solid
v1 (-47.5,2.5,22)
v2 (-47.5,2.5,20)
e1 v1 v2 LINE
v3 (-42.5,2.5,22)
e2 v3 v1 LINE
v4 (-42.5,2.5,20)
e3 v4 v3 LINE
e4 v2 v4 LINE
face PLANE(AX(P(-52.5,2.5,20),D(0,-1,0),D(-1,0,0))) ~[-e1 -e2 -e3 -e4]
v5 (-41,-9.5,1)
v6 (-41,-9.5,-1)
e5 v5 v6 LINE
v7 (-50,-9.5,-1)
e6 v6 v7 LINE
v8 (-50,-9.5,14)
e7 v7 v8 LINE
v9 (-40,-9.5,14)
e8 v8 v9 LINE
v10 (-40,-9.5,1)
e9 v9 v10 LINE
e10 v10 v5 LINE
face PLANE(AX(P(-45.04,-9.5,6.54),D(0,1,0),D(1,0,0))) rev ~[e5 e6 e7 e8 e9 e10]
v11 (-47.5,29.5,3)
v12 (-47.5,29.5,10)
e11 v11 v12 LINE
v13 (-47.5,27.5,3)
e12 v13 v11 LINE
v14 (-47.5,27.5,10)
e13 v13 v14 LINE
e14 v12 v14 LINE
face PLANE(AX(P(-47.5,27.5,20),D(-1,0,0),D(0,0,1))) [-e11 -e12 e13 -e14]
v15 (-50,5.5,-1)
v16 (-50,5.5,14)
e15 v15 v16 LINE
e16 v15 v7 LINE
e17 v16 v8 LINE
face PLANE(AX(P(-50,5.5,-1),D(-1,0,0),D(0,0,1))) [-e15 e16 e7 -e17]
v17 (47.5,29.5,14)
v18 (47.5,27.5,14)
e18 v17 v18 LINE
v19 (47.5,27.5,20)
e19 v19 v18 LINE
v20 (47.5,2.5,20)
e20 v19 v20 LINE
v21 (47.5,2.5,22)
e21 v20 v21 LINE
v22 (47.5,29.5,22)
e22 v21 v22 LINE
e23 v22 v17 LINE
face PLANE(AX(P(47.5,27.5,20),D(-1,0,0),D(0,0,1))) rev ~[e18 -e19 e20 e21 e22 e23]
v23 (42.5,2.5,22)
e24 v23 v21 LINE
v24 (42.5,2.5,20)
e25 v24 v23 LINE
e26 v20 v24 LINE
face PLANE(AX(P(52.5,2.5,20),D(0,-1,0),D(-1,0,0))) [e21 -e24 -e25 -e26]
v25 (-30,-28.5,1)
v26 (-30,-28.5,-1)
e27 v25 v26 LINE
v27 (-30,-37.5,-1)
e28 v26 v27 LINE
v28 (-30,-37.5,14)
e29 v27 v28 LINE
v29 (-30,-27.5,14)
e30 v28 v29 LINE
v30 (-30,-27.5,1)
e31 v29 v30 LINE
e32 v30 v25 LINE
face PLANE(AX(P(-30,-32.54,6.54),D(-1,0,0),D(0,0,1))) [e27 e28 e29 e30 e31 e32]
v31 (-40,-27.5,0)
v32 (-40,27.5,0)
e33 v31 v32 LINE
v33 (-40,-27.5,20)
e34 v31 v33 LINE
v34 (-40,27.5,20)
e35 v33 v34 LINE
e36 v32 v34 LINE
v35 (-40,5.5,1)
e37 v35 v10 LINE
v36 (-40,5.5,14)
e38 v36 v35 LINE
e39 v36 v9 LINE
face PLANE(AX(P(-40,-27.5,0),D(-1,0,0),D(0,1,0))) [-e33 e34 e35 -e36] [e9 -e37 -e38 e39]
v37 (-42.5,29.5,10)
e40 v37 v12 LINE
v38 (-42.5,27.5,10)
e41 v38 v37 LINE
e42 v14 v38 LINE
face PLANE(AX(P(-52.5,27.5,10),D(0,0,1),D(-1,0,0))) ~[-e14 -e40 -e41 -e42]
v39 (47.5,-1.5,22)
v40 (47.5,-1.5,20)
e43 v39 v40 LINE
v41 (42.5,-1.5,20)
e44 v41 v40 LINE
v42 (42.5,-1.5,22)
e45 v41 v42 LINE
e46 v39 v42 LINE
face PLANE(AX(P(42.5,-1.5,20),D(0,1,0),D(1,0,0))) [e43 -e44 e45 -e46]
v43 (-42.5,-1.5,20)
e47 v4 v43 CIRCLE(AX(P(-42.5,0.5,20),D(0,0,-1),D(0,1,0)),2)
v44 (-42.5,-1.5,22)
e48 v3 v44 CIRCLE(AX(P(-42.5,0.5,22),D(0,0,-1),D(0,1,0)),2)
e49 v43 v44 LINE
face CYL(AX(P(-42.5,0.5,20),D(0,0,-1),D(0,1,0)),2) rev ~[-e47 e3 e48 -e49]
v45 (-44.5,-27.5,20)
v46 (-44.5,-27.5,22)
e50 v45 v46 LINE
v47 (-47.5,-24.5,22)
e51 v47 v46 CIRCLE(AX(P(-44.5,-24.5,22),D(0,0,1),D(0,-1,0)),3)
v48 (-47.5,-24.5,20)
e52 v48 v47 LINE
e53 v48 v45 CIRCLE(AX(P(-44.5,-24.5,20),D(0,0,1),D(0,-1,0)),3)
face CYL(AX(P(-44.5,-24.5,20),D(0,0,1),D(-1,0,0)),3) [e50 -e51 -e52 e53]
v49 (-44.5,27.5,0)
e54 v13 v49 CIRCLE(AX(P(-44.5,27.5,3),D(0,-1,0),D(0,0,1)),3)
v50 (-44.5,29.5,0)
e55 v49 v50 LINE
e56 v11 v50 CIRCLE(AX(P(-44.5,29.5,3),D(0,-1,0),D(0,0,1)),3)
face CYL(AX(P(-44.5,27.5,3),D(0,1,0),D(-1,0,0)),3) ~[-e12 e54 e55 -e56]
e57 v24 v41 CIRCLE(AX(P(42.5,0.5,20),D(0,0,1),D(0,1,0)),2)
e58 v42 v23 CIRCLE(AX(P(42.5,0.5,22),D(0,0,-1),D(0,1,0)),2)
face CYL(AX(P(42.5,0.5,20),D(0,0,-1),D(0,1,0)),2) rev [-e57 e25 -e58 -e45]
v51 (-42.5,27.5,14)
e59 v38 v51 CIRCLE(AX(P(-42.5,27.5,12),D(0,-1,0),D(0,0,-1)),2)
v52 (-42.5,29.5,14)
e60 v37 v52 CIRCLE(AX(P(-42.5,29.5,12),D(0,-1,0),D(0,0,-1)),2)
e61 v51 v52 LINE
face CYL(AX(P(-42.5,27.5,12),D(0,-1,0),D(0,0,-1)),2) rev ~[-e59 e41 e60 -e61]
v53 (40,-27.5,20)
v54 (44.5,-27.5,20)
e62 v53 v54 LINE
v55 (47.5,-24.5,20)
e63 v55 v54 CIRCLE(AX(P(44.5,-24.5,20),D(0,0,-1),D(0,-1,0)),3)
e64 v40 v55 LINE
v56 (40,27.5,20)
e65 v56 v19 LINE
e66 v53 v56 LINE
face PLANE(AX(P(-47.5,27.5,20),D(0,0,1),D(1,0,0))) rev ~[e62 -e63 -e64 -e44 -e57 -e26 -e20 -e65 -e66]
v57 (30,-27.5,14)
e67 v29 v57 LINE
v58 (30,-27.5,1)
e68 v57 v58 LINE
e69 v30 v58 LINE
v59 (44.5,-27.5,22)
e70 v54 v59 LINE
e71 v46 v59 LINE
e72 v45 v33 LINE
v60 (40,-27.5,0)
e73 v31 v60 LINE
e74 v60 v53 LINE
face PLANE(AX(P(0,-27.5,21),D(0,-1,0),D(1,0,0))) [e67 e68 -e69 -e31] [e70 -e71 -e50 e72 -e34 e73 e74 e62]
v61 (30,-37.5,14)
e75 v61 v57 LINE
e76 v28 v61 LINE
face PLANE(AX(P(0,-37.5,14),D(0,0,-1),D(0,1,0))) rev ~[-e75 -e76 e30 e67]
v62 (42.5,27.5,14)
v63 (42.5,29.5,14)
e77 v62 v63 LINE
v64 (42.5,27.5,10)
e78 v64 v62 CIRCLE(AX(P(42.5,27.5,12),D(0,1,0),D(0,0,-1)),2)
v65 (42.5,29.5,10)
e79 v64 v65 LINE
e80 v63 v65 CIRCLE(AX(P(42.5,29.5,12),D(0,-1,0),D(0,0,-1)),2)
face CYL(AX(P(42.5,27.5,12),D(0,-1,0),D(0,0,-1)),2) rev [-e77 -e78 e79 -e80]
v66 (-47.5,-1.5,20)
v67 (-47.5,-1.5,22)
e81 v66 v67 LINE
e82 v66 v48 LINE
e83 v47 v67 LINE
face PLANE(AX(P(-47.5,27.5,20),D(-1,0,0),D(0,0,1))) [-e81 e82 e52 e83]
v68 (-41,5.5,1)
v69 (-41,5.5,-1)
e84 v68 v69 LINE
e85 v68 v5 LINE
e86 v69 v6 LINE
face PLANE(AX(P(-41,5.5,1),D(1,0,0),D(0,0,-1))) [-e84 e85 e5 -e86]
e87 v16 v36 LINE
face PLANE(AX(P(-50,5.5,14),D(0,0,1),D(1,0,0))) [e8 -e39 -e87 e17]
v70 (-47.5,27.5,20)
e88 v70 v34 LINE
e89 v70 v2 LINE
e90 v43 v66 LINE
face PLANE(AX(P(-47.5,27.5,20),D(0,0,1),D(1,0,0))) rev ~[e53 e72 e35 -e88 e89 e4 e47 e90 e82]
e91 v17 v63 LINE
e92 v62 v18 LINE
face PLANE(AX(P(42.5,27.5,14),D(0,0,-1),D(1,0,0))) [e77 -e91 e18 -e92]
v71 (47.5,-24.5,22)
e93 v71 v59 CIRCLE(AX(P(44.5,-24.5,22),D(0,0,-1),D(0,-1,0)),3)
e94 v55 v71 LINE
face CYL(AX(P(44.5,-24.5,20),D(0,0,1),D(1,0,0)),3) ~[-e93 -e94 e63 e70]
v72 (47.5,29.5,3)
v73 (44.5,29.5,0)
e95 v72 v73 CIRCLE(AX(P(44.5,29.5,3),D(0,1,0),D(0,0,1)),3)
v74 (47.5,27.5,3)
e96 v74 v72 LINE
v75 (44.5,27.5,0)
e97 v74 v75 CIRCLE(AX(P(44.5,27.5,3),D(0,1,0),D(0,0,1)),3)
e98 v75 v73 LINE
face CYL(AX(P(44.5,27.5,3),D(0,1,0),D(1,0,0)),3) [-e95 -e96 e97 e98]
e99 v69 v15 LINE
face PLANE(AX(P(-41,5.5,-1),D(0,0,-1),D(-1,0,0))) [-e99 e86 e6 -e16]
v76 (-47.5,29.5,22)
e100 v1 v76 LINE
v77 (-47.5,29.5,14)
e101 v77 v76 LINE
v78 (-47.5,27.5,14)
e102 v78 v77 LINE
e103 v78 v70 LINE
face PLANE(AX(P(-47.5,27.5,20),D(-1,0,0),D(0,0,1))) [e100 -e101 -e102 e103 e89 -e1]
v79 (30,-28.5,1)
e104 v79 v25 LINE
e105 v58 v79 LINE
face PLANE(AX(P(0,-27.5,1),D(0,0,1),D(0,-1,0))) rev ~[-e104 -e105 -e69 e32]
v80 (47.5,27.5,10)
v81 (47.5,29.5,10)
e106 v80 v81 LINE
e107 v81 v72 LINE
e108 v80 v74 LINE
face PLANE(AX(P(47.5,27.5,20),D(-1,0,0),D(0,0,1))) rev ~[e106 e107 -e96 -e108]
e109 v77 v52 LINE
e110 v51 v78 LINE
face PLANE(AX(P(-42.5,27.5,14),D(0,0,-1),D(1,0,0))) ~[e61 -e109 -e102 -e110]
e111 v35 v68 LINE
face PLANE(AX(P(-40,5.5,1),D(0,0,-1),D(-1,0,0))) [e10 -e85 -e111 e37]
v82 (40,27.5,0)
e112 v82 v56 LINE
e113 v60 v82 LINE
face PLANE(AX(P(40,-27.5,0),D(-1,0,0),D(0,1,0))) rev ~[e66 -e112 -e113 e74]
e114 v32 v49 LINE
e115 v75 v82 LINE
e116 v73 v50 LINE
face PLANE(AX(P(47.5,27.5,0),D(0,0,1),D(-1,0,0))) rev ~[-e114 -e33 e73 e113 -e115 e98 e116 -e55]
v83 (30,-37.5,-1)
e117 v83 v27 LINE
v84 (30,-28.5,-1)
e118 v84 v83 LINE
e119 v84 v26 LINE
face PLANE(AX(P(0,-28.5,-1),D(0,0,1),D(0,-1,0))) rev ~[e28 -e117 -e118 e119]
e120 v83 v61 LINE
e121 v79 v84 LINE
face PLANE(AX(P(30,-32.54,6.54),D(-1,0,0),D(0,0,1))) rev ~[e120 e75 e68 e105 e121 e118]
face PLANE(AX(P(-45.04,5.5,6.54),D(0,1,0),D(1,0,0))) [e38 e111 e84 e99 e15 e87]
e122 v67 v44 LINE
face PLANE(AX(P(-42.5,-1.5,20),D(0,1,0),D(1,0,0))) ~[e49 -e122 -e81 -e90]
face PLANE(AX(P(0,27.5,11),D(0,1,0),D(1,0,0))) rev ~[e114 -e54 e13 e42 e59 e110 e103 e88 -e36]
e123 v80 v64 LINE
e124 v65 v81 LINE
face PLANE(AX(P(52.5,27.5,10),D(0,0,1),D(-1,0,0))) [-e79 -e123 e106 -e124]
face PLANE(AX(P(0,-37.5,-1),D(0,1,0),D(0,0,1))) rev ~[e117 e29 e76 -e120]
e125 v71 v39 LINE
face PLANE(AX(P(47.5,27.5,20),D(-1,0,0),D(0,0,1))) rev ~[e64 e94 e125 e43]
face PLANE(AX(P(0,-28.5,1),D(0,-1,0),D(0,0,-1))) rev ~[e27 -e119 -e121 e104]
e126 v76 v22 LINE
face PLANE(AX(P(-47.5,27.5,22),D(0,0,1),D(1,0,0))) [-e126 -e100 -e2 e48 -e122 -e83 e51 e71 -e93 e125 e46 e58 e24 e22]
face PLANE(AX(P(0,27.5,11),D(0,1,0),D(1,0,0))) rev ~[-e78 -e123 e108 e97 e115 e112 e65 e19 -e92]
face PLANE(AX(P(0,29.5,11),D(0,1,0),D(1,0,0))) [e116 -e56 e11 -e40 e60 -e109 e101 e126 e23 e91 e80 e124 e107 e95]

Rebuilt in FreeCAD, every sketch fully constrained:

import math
import FreeCAD as App
import Part
import Sketcher
Q = App.Units.Quantity


def edges_at(feature, points):
    """Names of the edges that pass closest to the given points."""
    edges = feature.Shape.Edges
    near = lambda p: min(range(len(edges)), key=lambda i: edges[i].distToShape(Part.Vertex(*p))[0])
    return sorted({f"Edge{near(p) + 1}" for p in points})

doc = App.newDocument("Part")
body = doc.addObject("PartDesign::Body", "Body")

sketch1 = doc.addObject("Sketcher::SketchObject", "Sketch")
body.addObject(sketch1)
sketch1.AttachmentSupport = (doc.XY_Plane, [""])
sketch1.MapMode = "FlatFace"
sketch1.addGeometry([
    Part.LineSegment(App.Vector(-40, 28, 0), App.Vector(-40, -28, 0)),
    Part.LineSegment(App.Vector(-40, -28, 0), App.Vector(40, -28, 0)),
    Part.LineSegment(App.Vector(40, -28, 0), App.Vector(40, 28, 0)),
    Part.LineSegment(App.Vector(40, 28, 0), App.Vector(-40, 28, 0)),
], False)
sketch1.addConstraint([
    Sketcher.Constraint("Coincident", 0, 2, 1, 1),
    Sketcher.Constraint("Coincident", 1, 2, 2, 1),
    Sketcher.Constraint("Coincident", 2, 2, 3, 1),
    Sketcher.Constraint("Coincident", 3, 2, 0, 1),
    Sketcher.Constraint("Vertical", 0),
    Sketcher.Constraint("Horizontal", 1),
    Sketcher.Constraint("Vertical", 2),
    Sketcher.Constraint("Horizontal", 3),
    Sketcher.Constraint("Symmetric", 0, 2, 2, 2, -1, 1),
    Sketcher.Constraint("DistanceX", 1, 1, 1, 2, Q("80 mm")),
    Sketcher.Constraint("DistanceY", 0, 2, 0, 1, Q("55 mm")),
])
pad1 = doc.addObject("PartDesign::Pad", "Pad")
body.addObject(pad1)
pad1.Profile = sketch1
pad1.Length = 20
body2 = doc.addObject("PartDesign::Body", "Body001")

sketch2 = doc.addObject("Sketcher::SketchObject", "Sketch001")
body2.addObject(sketch2)
sketch2.AttachmentSupport = (doc.getObject("XZ_Plane001"), [""])
sketch2.MapMode = "FlatFace"
sketch2.AttachmentOffset = App.Placement(App.Vector(0, 0, -27.5), App.Rotation())
sketch2.addGeometry([
    Part.LineSegment(App.Vector(-48, 0, 0), App.Vector(-48, 22, 0)),
    Part.LineSegment(App.Vector(-48, 22, 0), App.Vector(48, 22, 0)),
    Part.LineSegment(App.Vector(48, 22, 0), App.Vector(48, 0, 0)),
    Part.LineSegment(App.Vector(48, 0, 0), App.Vector(-48, 0, 0)),
], False)
sketch2.addConstraint([
    Sketcher.Constraint("Coincident", 0, 2, 1, 1),
    Sketcher.Constraint("Coincident", 1, 2, 2, 1),
    Sketcher.Constraint("Coincident", 2, 2, 3, 1),
    Sketcher.Constraint("Coincident", 3, 2, 0, 1),
    Sketcher.Constraint("Vertical", 0),
    Sketcher.Constraint("Horizontal", 1),
    Sketcher.Constraint("Vertical", 2),
    Sketcher.Constraint("Horizontal", 3),
    Sketcher.Constraint("Symmetric", 2, 2, 3, 2, -1, 1),
    Sketcher.Constraint("DistanceX", 1, 1, 1, 2, Q("95 mm")),
    Sketcher.Constraint("DistanceY", 0, 1, 0, 2, Q("22 mm")),
])
pad2 = doc.addObject("PartDesign::Pad", "Pad001")
body2.addObject(pad2)
pad2.Profile = sketch2
pad2.Length = 2
pad2.Reversed = True
doc.recompute()

boolean = doc.addObject("PartDesign::Boolean", "Boolean")
body.addObject(boolean)
boolean.Type = "Fuse"
boolean.addObjects([body2])

sketch3 = doc.addObject("Sketcher::SketchObject", "Sketch002")
body.addObject(sketch3)
sketch3.AttachmentSupport = (doc.XZ_Plane, [""])
sketch3.MapMode = "FlatFace"
sketch3.AttachmentOffset = App.Placement(App.Vector(0, 0, -27.5), App.Rotation())
sketch3.addGeometry([
    Part.LineSegment(App.Vector(-47.5, 22, 0), App.Vector(-47.5, 20, 0)),
    Part.LineSegment(App.Vector(-47.5, 20, 0), App.Vector(47.5, 20, 0)),
    Part.LineSegment(App.Vector(47.5, 20, 0), App.Vector(47.5, 22, 0)),
    Part.LineSegment(App.Vector(47.5, 22, 0), App.Vector(-47.5, 22, 0)),
], False)
sketch3.addConstraint([
    Sketcher.Constraint("Coincident", 0, 2, 1, 1),
    Sketcher.Constraint("Coincident", 1, 2, 2, 1),
    Sketcher.Constraint("Coincident", 2, 2, 3, 1),
    Sketcher.Constraint("Coincident", 3, 2, 0, 1),
    Sketcher.Constraint("Vertical", 0),
    Sketcher.Constraint("Horizontal", 1),
    Sketcher.Constraint("Vertical", 2),
    Sketcher.Constraint("Horizontal", 3),
    Sketcher.Constraint("DistanceX", 1, 1, 1, 2, Q("95 mm")),
    Sketcher.Constraint("DistanceY", 0, 2, 0, 1, Q("2 mm")),
    Sketcher.Constraint("DistanceY", -1, 1, 0, 2, Q("20 mm")),
    Sketcher.Constraint("DistanceX", 0, 2, -1, 1, Q("47.5 mm")),
])
pad3 = doc.addObject("PartDesign::Pad", "Pad002")
body.addObject(pad3)
pad3.Profile = sketch3
pad3.Length = 55

sketch4 = doc.addObject("Sketcher::SketchObject", "Sketch003")
body.addObject(sketch4)
sketch4.AttachmentSupport = (doc.YZ_Plane, [""])
sketch4.MapMode = "FlatFace"
sketch4.addGeometry([
    Part.LineSegment(App.Vector(-28.5, 1, 0), App.Vector(-27.5, 1, 0)),
    Part.LineSegment(App.Vector(-27.5, 1, 0), App.Vector(-27.5, 14, 0)),
    Part.LineSegment(App.Vector(-27.5, 14, 0), App.Vector(-37.5, 14, 0)),
    Part.LineSegment(App.Vector(-37.5, 14, 0), App.Vector(-37.5, -1, 0)),
    Part.LineSegment(App.Vector(-37.5, -1, 0), App.Vector(-28.5, -1, 0)),
    Part.LineSegment(App.Vector(-28.5, -1, 0), App.Vector(-28.5, 1, 0)),
], False)
sketch4.addConstraint([
    Sketcher.Constraint("Coincident", 0, 2, 1, 1),
    Sketcher.Constraint("Coincident", 1, 2, 2, 1),
    Sketcher.Constraint("Coincident", 2, 2, 3, 1),
    Sketcher.Constraint("Coincident", 3, 2, 4, 1),
    Sketcher.Constraint("Coincident", 4, 2, 5, 1),
    Sketcher.Constraint("Coincident", 5, 2, 0, 1),
    Sketcher.Constraint("Horizontal", 0),
    Sketcher.Constraint("Vertical", 1),
    Sketcher.Constraint("Horizontal", 2),
    Sketcher.Constraint("Vertical", 3),
    Sketcher.Constraint("Horizontal", 4),
    Sketcher.Constraint("Vertical", 5),
    Sketcher.Constraint("DistanceX", 0, 1, 0, 2, Q("1 mm")),
    Sketcher.Constraint("DistanceX", 2, 2, 2, 1, Q("10 mm")),
    Sketcher.Constraint("DistanceY", 1, 1, 1, 2, Q("13 mm")),
    Sketcher.Constraint("DistanceY", 3, 2, 3, 1, Q("15 mm")),
    Sketcher.Constraint("DistanceY", -1, 1, 0, 2, Q("1 mm")),
    Sketcher.Constraint("DistanceX", 0, 2, -1, 1, Q("27.5 mm")),
])
pad4 = doc.addObject("PartDesign::Pad", "Pad003")
body.addObject(pad4)
pad4.Profile = sketch4
pad4.Length = 60
pad4.Midplane = True

sketch5 = doc.addObject("Sketcher::SketchObject", "Sketch004")
body.addObject(sketch5)
sketch5.AttachmentSupport = (doc.XZ_Plane, [""])
sketch5.MapMode = "FlatFace"
sketch5.AttachmentOffset = App.Placement(App.Vector(0, 0, -27.5), App.Rotation())
sketch5.addGeometry([
    Part.LineSegment(App.Vector(42.5, 10, 0), App.Vector(52.5, 10, 0)),
    Part.ArcOfCircle(Part.Circle(App.Vector(52.5, 12, 0), App.Vector(0, 0, 1), 2), math.radians(-90), math.radians(90)),
    Part.LineSegment(App.Vector(52.5, 14, 0), App.Vector(42.5, 14, 0)),
    Part.ArcOfCircle(Part.Circle(App.Vector(42.5, 12, 0), App.Vector(0, 0, 1), 2), math.radians(90), math.radians(270)),
], False)
sketch5.addConstraint([
    Sketcher.Constraint("Tangent", 0, 2, 1, 1),
    Sketcher.Constraint("Tangent", 1, 2, 2, 1),
    Sketcher.Constraint("Tangent", 2, 2, 3, 1),
    Sketcher.Constraint("Tangent", 3, 2, 0, 1),
    Sketcher.Constraint("Horizontal", 0),
    Sketcher.Constraint("Horizontal", 2),
    Sketcher.Constraint("Radius", 1, Q("2 mm")),
    Sketcher.Constraint("DistanceX", 0, 1, 0, 2, Q("10 mm")),
    Sketcher.Constraint("DistanceY", -1, 1, 1, 3, Q("12 mm")),
    Sketcher.Constraint("DistanceX", -1, 1, 1, 3, Q("52.5 mm")),
])
pocket1 = doc.addObject("PartDesign::Pocket", "Pocket")
body.addObject(pocket1)
pocket1.Profile = sketch5
pocket1.Type = "ThroughAll"

sketch6 = doc.addObject("Sketcher::SketchObject", "Sketch005")
body.addObject(sketch6)
sketch6.AttachmentSupport = (doc.XY_Plane, [""])
sketch6.MapMode = "FlatFace"
sketch6.AttachmentOffset = App.Placement(App.Vector(0, 0, 20), App.Rotation())
sketch6.addGeometry([
    Part.LineSegment(App.Vector(42.5, 2.5, 0), App.Vector(52.5, 2.5, 0)),
    Part.ArcOfCircle(Part.Circle(App.Vector(52.5, 0.5, 0), App.Vector(0, 0, 1), 2), math.radians(-90), math.radians(90)),
    Part.LineSegment(App.Vector(52.5, -1.5, 0), App.Vector(42.5, -1.5, 0)),
    Part.ArcOfCircle(Part.Circle(App.Vector(42.5, 0.5, 0), App.Vector(0, 0, 1), 2), math.radians(90), math.radians(270)),
], False)
sketch6.addConstraint([
    Sketcher.Constraint("Tangent", 0, 2, 1, 2),
    Sketcher.Constraint("Tangent", 1, 1, 2, 1),
    Sketcher.Constraint("Tangent", 2, 2, 3, 2),
    Sketcher.Constraint("Tangent", 3, 1, 0, 1),
    Sketcher.Constraint("Horizontal", 0),
    Sketcher.Constraint("Horizontal", 2),
    Sketcher.Constraint("Radius", 1, Q("2 mm")),
    Sketcher.Constraint("DistanceX", 0, 1, 0, 2, Q("10 mm")),
    Sketcher.Constraint("DistanceX", -1, 1, 1, 3, Q("52.5 mm")),
    Sketcher.Constraint("DistanceY", -1, 1, 1, 3, Q("0.5 mm")),
])
pocket2 = doc.addObject("PartDesign::Pocket", "Pocket001")
body.addObject(pocket2)
pocket2.Profile = sketch6
pocket2.Type = "ThroughAll"
pocket2.Reversed = True
doc.recompute()

mirrored = doc.addObject("PartDesign::Mirrored", "Mirrored")
body.addObject(mirrored)
mirrored.Originals = [pocket1, pocket2]
mirrored.MirrorPlane = (doc.YZ_Plane, [""])
body.Tip = mirrored
doc.recompute()

fillet = doc.addObject("PartDesign::Fillet", "Fillet")
body.addObject(fillet)
fillet.Base = (mirrored, edges_at(mirrored, [
    (47.5, -27.5, 21),
    (-47.5, -27.5, 21),
    (47.5, 28.5, 0),
    (-47.5, 28.5, 0),
]))
fillet.Radius = 3

sketch7 = doc.addObject("Sketcher::SketchObject", "Sketch006")
body.addObject(sketch7)
sketch7.AttachmentSupport = (doc.XZ_Plane, [""])
sketch7.MapMode = "FlatFace"
sketch7.AttachmentOffset = App.Placement(App.Vector(0, 0, -5.5), App.Rotation())
sketch7.addGeometry([
    Part.LineSegment(App.Vector(-41, 1, 0), App.Vector(-40, 1, 0)),
    Part.LineSegment(App.Vector(-40, 1, 0), App.Vector(-40, 14, 0)),
    Part.LineSegment(App.Vector(-40, 14, 0), App.Vector(-50, 14, 0)),
    Part.LineSegment(App.Vector(-50, 14, 0), App.Vector(-50, -1, 0)),
    Part.LineSegment(App.Vector(-50, -1, 0), App.Vector(-41, -1, 0)),
    Part.LineSegment(App.Vector(-41, -1, 0), App.Vector(-41, 1, 0)),
], False)
sketch7.addConstraint([
    Sketcher.Constraint("Coincident", 0, 2, 1, 1),
    Sketcher.Constraint("Coincident", 1, 2, 2, 1),
    Sketcher.Constraint("Coincident", 2, 2, 3, 1),
    Sketcher.Constraint("Coincident", 3, 2, 4, 1),
    Sketcher.Constraint("Coincident", 4, 2, 5, 1),
    Sketcher.Constraint("Coincident", 5, 2, 0, 1),
    Sketcher.Constraint("Horizontal", 0),
    Sketcher.Constraint("Vertical", 1),
    Sketcher.Constraint("Horizontal", 2),
    Sketcher.Constraint("Vertical", 3),
    Sketcher.Constraint("Horizontal", 4),
    Sketcher.Constraint("Vertical", 5),
    Sketcher.Constraint("DistanceX", 0, 1, 0, 2, Q("1 mm")),
    Sketcher.Constraint("DistanceX", 2, 2, 2, 1, Q("10 mm")),
    Sketcher.Constraint("DistanceY", 1, 1, 1, 2, Q("13 mm")),
    Sketcher.Constraint("DistanceY", 3, 2, 3, 1, Q("15 mm")),
    Sketcher.Constraint("DistanceX", 0, 2, -1, 1, Q("40 mm")),
    Sketcher.Constraint("DistanceY", -1, 1, 0, 2, Q("1 mm")),
])
pad5 = doc.addObject("PartDesign::Pad", "Pad004")
body.addObject(pad5)
pad5.Profile = sketch7
pad5.Length = 15

doc.recompute()
